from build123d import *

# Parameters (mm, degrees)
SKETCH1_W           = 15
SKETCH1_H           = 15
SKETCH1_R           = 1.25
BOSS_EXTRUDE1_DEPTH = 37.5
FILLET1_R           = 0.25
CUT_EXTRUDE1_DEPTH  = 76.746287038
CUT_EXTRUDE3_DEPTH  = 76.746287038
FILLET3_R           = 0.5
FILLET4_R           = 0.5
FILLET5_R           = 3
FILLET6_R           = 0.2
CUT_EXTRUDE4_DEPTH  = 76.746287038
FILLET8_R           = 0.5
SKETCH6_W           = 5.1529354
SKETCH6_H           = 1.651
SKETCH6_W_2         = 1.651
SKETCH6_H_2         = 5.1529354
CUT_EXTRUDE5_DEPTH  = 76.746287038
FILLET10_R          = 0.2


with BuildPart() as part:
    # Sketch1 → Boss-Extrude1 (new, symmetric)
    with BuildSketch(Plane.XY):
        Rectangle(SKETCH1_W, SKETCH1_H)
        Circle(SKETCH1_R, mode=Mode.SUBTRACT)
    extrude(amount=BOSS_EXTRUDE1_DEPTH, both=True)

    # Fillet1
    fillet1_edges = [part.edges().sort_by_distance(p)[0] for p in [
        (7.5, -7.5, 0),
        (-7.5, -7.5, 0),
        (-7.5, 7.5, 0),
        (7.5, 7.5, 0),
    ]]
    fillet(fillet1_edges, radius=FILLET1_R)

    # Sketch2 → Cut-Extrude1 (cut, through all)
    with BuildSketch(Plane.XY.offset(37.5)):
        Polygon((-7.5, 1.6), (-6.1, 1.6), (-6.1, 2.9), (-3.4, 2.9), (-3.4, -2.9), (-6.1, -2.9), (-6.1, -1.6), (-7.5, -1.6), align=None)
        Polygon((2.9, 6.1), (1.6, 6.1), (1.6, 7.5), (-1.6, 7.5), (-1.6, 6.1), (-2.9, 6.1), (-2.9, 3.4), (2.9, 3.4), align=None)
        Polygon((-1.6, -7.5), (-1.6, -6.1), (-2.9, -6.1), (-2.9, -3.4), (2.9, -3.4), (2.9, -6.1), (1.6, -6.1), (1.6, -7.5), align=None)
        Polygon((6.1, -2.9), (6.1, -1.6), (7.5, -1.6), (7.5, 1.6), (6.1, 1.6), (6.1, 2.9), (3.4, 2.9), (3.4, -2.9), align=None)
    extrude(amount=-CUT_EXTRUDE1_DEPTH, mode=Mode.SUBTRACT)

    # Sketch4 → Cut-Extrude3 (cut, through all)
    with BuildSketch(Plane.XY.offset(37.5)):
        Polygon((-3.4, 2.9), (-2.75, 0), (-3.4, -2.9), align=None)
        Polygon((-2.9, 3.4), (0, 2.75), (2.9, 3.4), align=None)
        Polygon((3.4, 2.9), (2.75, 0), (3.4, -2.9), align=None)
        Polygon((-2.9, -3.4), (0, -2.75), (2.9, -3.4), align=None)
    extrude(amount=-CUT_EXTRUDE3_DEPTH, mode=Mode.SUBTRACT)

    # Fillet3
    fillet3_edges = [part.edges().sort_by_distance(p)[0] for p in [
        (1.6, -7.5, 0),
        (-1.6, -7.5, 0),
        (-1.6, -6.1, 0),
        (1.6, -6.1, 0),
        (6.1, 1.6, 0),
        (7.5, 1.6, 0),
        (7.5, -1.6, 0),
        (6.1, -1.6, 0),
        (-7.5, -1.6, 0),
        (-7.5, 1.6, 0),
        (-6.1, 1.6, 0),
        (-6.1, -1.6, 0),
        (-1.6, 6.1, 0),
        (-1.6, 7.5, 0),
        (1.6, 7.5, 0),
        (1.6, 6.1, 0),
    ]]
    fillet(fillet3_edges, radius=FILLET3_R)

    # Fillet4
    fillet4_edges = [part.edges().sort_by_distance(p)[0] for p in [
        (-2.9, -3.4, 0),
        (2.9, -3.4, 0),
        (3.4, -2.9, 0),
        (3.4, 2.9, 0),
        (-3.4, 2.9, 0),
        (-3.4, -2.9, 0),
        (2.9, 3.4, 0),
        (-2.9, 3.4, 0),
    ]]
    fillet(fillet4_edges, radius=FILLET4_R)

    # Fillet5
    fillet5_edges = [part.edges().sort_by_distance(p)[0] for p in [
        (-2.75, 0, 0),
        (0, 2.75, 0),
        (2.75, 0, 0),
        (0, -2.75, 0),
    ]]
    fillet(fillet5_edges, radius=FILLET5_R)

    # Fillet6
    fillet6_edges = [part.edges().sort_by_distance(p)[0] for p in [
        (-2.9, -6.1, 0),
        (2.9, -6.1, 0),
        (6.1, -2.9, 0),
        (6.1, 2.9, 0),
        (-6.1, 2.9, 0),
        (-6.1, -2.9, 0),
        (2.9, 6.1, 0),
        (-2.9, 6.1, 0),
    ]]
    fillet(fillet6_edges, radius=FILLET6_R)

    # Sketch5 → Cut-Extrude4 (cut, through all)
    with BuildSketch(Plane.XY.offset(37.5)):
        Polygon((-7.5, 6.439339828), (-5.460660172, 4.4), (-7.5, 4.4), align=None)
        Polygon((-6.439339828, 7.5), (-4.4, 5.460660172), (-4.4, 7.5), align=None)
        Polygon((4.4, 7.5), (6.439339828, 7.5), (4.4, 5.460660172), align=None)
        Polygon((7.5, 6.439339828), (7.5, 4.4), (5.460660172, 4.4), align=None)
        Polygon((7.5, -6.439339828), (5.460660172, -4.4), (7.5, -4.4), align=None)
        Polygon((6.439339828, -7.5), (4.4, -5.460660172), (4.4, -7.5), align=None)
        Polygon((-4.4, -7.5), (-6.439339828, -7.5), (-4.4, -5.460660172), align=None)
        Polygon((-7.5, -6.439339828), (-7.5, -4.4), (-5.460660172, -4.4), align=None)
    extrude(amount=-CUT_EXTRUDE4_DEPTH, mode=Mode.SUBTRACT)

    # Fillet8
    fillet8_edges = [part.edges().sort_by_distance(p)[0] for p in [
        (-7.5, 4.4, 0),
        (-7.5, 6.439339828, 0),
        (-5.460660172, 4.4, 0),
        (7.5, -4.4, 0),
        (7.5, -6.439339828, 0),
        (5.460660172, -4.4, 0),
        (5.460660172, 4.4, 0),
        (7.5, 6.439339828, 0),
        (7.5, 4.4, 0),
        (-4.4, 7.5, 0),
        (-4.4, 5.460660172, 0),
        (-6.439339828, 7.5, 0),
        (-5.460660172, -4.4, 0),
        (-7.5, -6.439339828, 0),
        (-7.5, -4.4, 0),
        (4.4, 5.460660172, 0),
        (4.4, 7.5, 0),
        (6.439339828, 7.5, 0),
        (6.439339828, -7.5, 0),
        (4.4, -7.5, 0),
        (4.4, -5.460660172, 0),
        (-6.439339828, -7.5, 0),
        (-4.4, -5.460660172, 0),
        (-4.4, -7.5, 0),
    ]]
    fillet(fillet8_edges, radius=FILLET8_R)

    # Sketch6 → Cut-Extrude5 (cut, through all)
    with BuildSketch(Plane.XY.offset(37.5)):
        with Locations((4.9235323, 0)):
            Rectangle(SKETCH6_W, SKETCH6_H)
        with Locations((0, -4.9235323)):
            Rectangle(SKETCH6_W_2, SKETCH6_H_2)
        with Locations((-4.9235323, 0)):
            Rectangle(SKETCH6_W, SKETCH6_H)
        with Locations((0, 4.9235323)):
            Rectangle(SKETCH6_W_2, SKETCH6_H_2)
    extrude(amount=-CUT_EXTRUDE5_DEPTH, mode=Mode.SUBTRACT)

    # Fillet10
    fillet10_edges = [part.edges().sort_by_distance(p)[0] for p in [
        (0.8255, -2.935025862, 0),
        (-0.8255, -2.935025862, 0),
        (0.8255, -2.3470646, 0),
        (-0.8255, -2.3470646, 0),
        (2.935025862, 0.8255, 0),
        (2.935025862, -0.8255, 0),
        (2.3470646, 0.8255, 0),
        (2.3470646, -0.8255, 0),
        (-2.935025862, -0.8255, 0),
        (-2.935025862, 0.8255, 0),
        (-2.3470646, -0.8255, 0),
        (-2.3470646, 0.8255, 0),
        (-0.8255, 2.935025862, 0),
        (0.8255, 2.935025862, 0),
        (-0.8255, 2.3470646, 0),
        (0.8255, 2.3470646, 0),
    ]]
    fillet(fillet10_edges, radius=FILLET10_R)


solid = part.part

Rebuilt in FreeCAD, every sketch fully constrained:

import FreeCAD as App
import Part
import Sketcher
Q = App.Units.Quantity


def edges_at(feature, points):
    """Names of the edges that pass closest to the given points."""
    edges = feature.Shape.Edges
    near = lambda p: min(range(len(edges)), key=lambda i: edges[i].distToShape(Part.Vertex(*p))[0])
    return sorted({f"Edge{near(p) + 1}" for p in points})


def add_polygon(sketch, points):
    """Adds a closed chain of lines whose ends are joined by coincident constraints."""
    first, n = sketch.GeometryCount, len(points)
    for a, b in zip(points, points[1:] + points[:1]):
        sketch.addGeometry(Part.LineSegment(App.Vector(*a, 0), App.Vector(*b, 0)), False)
    for i in range(n):
        sketch.addConstraint(Sketcher.Constraint("Coincident", first + i, 2, first + (i + 1) % n, 1))

doc = App.newDocument("Part")
body = doc.addObject("PartDesign::Body", "Body")

# Sketch on XY plane
sketch1 = body.newObject("Sketcher::SketchObject", "Sketch")
sketch1.AttachmentSupport = (doc.getObject("XY_Plane"), [""])
sketch1.MapMode = "FlatFace"
add_polygon(sketch1, [(-7.5, 7.5), (-7.5, -7.5), (7.5, -7.5), (7.5, 7.5)])  # lines 0-3
sketch1.addGeometry(Part.Circle(App.Vector(0, 0, 0), App.Vector(0, 0, 1), 1.2), False)  # 4
sketch1.addConstraint(Sketcher.Constraint("Vertical", 0))
sketch1.addConstraint(Sketcher.Constraint("Horizontal", 1))
sketch1.addConstraint(Sketcher.Constraint("Vertical", 2))
sketch1.addConstraint(Sketcher.Constraint("Horizontal", 3))
sketch1.addConstraint(Sketcher.Constraint("Coincident", 4, 3, -1, 1))
sketch1.addConstraint(Sketcher.Constraint("Symmetric", 0, 2, 2, 2, -1, 1))
sketch1.addConstraint(Sketcher.Constraint("Equal", 3, 0))
sketch1.addConstraint(Sketcher.Constraint("Diameter", 4, Q("2.5 mm")))
sketch1.addConstraint(Sketcher.Constraint("DistanceX", 1, 1, 1, 2, Q("15 mm")))
pad1 = body.newObject("PartDesign::Pad", "Pad")
pad1.Profile = sketch1
pad1.Length = 75
pad1.Midplane = True
doc.recompute()

fillet = body.newObject("PartDesign::Fillet", "Fillet")
fillet.Base = (pad1, edges_at(pad1, [
    (7.5, -7.5, 0),
    (-7.5, -7.5, 0),
    (-7.5, 7.5, 0),
    (7.5, 7.5, 0),
]))
fillet.Radius = 0.25

# Sketch on XY plane
sketch2 = body.newObject("Sketcher::SketchObject", "Sketch001")
sketch2.AttachmentSupport = (doc.getObject("XY_Plane"), [""])
sketch2.MapMode = "FlatFace"
sketch2.AttachmentOffset = App.Placement(App.Vector(0, 0, 37.5), App.Rotation())
add_polygon(sketch2, [(-6.1, 1.6), (-7.5, 1.6), (-7.5, -1.6), (-6.1, -1.6), (-6.1, -2.9), (-3.4, -2.9), (-3.4, 2.9), (-6.1, 2.9)])  # lines 0-7
add_polygon(sketch2, [(2.9, 6.1), (1.6, 6.1), (1.6, 7.5), (-1.6, 7.5), (-1.6, 6.1), (-2.9, 6.1), (-2.9, 3.4), (2.9, 3.4)])  # lines 8-15
add_polygon(sketch2, [(-1.6, -6.1), (-1.6, -7.5), (1.6, -7.5), (1.6, -6.1), (2.9, -6.1), (2.9, -3.4), (-2.9, -3.4), (-2.9, -6.1)])  # lines 16-23
add_polygon(sketch2, [(6.1, -2.9), (6.1, -1.6), (7.5, -1.6), (7.5, 1.6), (6.1, 1.6), (6.1, 2.9), (3.4, 2.9), (3.4, -2.9)])  # lines 24-31
sketch2.addConstraint(Sketcher.Constraint("Horizontal", 0))
sketch2.addConstraint(Sketcher.Constraint("Vertical", 1))
sketch2.addConstraint(Sketcher.Constraint("Horizontal", 2))
sketch2.addConstraint(Sketcher.Constraint("Vertical", 3))
sketch2.addConstraint(Sketcher.Constraint("Horizontal", 4))
sketch2.addConstraint(Sketcher.Constraint("Vertical", 5))
sketch2.addConstraint(Sketcher.Constraint("Horizontal", 6))
sketch2.addConstraint(Sketcher.Constraint("Vertical", 7))
sketch2.addConstraint(Sketcher.Constraint("Horizontal", 8))
sketch2.addConstraint(Sketcher.Constraint("Vertical", 9))
sketch2.addConstraint(Sketcher.Constraint("Horizontal", 10))
sketch2.addConstraint(Sketcher.Constraint("Vertical", 11))
sketch2.addConstraint(Sketcher.Constraint("Horizontal", 12))
sketch2.addConstraint(Sketcher.Constraint("Vertical", 13))
sketch2.addConstraint(Sketcher.Constraint("Horizontal", 14))
sketch2.addConstraint(Sketcher.Constraint("Vertical", 15))
sketch2.addConstraint(Sketcher.Constraint("Vertical", 16))
sketch2.addConstraint(Sketcher.Constraint("Horizontal", 17))
sketch2.addConstraint(Sketcher.Constraint("Vertical", 18))
sketch2.addConstraint(Sketcher.Constraint("Horizontal", 19))
sketch2.addConstraint(Sketcher.Constraint("Vertical", 20))
sketch2.addConstraint(Sketcher.Constraint("Horizontal", 21))
sketch2.addConstraint(Sketcher.Constraint("Vertical", 22))
sketch2.addConstraint(Sketcher.Constraint("Horizontal", 23))
sketch2.addConstraint(Sketcher.Constraint("Vertical", 24))
sketch2.addConstraint(Sketcher.Constraint("Horizontal", 25))
sketch2.addConstraint(Sketcher.Constraint("Vertical", 26))
sketch2.addConstraint(Sketcher.Constraint("Horizontal", 27))
sketch2.addConstraint(Sketcher.Constraint("Vertical", 28))
sketch2.addConstraint(Sketcher.Constraint("Horizontal", 29))
sketch2.addConstraint(Sketcher.Constraint("Vertical", 30))
sketch2.addConstraint(Sketcher.Constraint("Horizontal", 31))
sketch2.addConstraint(Sketcher.Constraint("Symmetric", 9, 2, 16, 2, -1, 1))
sketch2.addConstraint(Sketcher.Constraint("Symmetric", 11, 2, 18, 2, -1, 1))
sketch2.addConstraint(Sketcher.Constraint("Symmetric", 13, 2, 20, 2, -1, 1))
sketch2.addConstraint(Sketcher.Constraint("Symmetric", 15, 2, 22, 2, -1, 1))
sketch2.addConstraint(Sketcher.Constraint("Symmetric", 7, 2, 24, 2, -1, 1))
sketch2.addConstraint(Sketcher.Constraint("Symmetric", 1, 2, 26, 2, -1, 1))
sketch2.addConstraint(Sketcher.Constraint("Symmetric", 3, 2, 28, 2, -1, 1))
sketch2.addConstraint(Sketcher.Constraint("Symmetric", 5, 2, 30, 2, -1, 1))
sketch2.addConstraint(Sketcher.Constraint("Symmetric", 8, 2, 11, 2, -2))
sketch2.addConstraint(Sketcher.Constraint("Symmetric", 2, 2, 24, 2, -2))
sketch2.addConstraint(Sketcher.Constraint("Horizontal", 6, 2, 28, 2))
sketch2.addConstraint(Sketcher.Constraint("Vertical", 15, 2, 19, 2))
sketch2.addConstraint(Sketcher.Constraint("Equal", 17, 1))
sketch2.addConstraint(Sketcher.Constraint("Equal", 23, 3))
sketch2.addConstraint(Sketcher.Constraint("Equal", 27, 9))
sketch2.addConstraint(Sketcher.Constraint("Equal", 31, 13))
sketch2.addConstraint(Sketcher.Constraint("DistanceX", 0, 2, 0, 1, Q("1.4 mm")))
sketch2.addConstraint(Sketcher.Constraint("DistanceX", 4, 1, 4, 2, Q("2.7 mm")))
sketch2.addConstraint(Sketcher.Constraint("DistanceX", 8, 2, 8, 1, Q("1.3 mm")))
sketch2.addConstraint(Sketcher.Constraint("DistanceX", 10, 2, 10, 1, Q("3.2 mm")))
sketch2.addConstraint(Sketcher.Constraint("DistanceX", 5, 2, 8, 2, Q("5 mm")))
sketch2.addConstraint(Sketcher.Constraint("DistanceY", 4, 2, 8, 2, Q("9 mm")))
pocket1 = body.newObject("PartDesign::Pocket", "Pocket")
pocket1.Profile = sketch2
pocket1.Type = "ThroughAll"

# Sketch on XY plane
sketch3 = body.newObject("Sketcher::SketchObject", "Sketch002")
sketch3.AttachmentSupport = (doc.getObject("XY_Plane"), [""])
sketch3.MapMode = "FlatFace"
sketch3.AttachmentOffset = App.Placement(App.Vector(0, 0, 37.5), App.Rotation())
add_polygon(sketch3, [(-2.8, 0), (-3.4, 2.9), (-3.4, -2.9)])  # lines 0-2
add_polygon(sketch3, [(-2.9, 3.4), (0, 2.8), (2.9, 3.4)])  # lines 3-5
add_polygon(sketch3, [(3.4, 2.9), (2.8, 0), (3.4, -2.9)])  # lines 6-8
add_polygon(sketch3, [(0, -2.8), (-2.9, -3.4), (2.9, -3.4)])  # lines 9-11
sketch3.addConstraint(Sketcher.Constraint("Vertical", 1))
sketch3.addConstraint(Sketcher.Constraint("Horizontal", 5))
sketch3.addConstraint(Sketcher.Constraint("Vertical", 8))
sketch3.addConstraint(Sketcher.Constraint("Horizontal", 10))
sketch3.addConstraint(Sketcher.Constraint("Symmetric", 2, 2, 6, 2, -1, 1))
sketch3.addConstraint(Sketcher.Constraint("Symmetric", 0, 2, 7, 2, -1, 1))
sketch3.addConstraint(Sketcher.Constraint("Symmetric", 4, 2, 9, 2, -1, 1))
sketch3.addConstraint(Sketcher.Constraint("Symmetric", 3, 2, 11, 2, -1, 1))
sketch3.addConstraint(Sketcher.Constraint("PointOnObject", 2, 2, -1))
sketch3.addConstraint(Sketcher.Constraint("PointOnObject", 3, 2, -2))
sketch3.addConstraint(Sketcher.Constraint("Perpendicular", 2, 3))
sketch3.addConstraint(Sketcher.Constraint("Perpendicular", 0, 4))
sketch3.addConstraint(Sketcher.Constraint("Perpendicular", 3, 6))
sketch3.addConstraint(Sketcher.Constraint("Perpendicular", 6, 11))
sketch3.addConstraint(Sketcher.Constraint("Horizontal", 1, 2, 7, 2))
sketch3.addConstraint(Sketcher.Constraint("Equal", 10, 1))
sketch3.addConstraint(Sketcher.Constraint("DistanceX", 5, 2, 5, 1, Q("5.8 mm")))
sketch3.addConstraint(Sketcher.Constraint("DistanceX", 0, 2, -1, 1, Q("3.4 mm")))
sketch3.addConstraint(Sketcher.Constraint("DistanceY", -1, 1, 4, 2, Q("3.4 mm")))
sketch3.addConstraint(Sketcher.Constraint("DistanceX", 2, 2, 6, 2, Q("5.5 mm")))
pocket2 = body.newObject("PartDesign::Pocket", "Pocket001")
pocket2.Profile = sketch3
pocket2.Type = "ThroughAll"
doc.recompute()

fillet2 = body.newObject("PartDesign::Fillet", "Fillet001")
fillet2.Base = (pocket2, edges_at(pocket2, [
    (1.6, -7.5, 0),
    (-1.6, -7.5, 0),
    (-1.6, -6.1, 0),
    (1.6, -6.1, 0),
    (6.1, 1.6, 0),
    (7.5, 1.6, 0),
    (7.5, -1.6, 0),
    (6.1, -1.6, 0),
    (-7.5, -1.6, 0),
    (-7.5, 1.6, 0),
    (-6.1, 1.6, 0),
    (-6.1, -1.6, 0),
    (-1.6, 6.1, 0),
    (-1.6, 7.5, 0),
    (1.6, 7.5, 0),
    (1.6, 6.1, 0),
]))
fillet2.Radius = 0.5
doc.recompute()

fillet3 = body.newObject("PartDesign::Fillet", "Fillet002")
fillet3.Base = (fillet2, edges_at(fillet2, [
    (-2.9, -3.4, 0),
    (2.9, -3.4, 0),
    (3.4, -2.9, 0),
    (3.4, 2.9, 0),
    (-3.4, 2.9, 0),
    (-3.4, -2.9, 0),
    (2.9, 3.4, 0),
    (-2.9, 3.4, 0),
]))
fillet3.Radius = 0.5
doc.recompute()

fillet4 = body.newObject("PartDesign::Fillet", "Fillet003")
fillet4.Base = (fillet3, edges_at(fillet3, [
    (-2.75, 0, 0),
    (0, 2.75, 0),
    (2.75, 0, 0),
    (0, -2.75, 0),
]))
fillet4.Radius = 3
doc.recompute()

fillet5 = body.newObject("PartDesign::Fillet", "Fillet004")
fillet5.Base = (fillet4, edges_at(fillet4, [
    (-2.9, -6.1, 0),
    (2.9, -6.1, 0),
    (6.1, -2.9, 0),
    (6.1, 2.9, 0),
    (-6.1, 2.9, 0),
    (-6.1, -2.9, 0),
    (2.9, 6.1, 0),
    (-2.9, 6.1, 0),
]))
fillet5.Radius = 0.2

# Sketch on XY plane
sketch4 = body.newObject("Sketcher::SketchObject", "Sketch003")
sketch4.AttachmentSupport = (doc.getObject("XY_Plane"), [""])
sketch4.MapMode = "FlatFace"
sketch4.AttachmentOffset = App.Placement(App.Vector(0, 0, 37.5), App.Rotation())
add_polygon(sketch4, [(-5.5, 4.4), (-7.5, 6.4), (-7.5, 4.4)])  # lines 0-2
add_polygon(sketch4, [(-6.4, 7.5), (-4.4, 5.5), (-4.4, 7.5)])  # lines 3-5
add_polygon(sketch4, [(6.4, 7.5), (4.4, 7.5), (4.4, 5.5)])  # lines 6-8
add_polygon(sketch4, [(7.5, 4.4), (7.5, 6.4), (5.5, 4.4)])  # lines 9-11
add_polygon(sketch4, [(5.5, -4.4), (7.5, -6.4), (7.5, -4.4)])  # lines 12-14
add_polygon(sketch4, [(6.4, -7.5), (4.4, -5.5), (4.4, -7.5)])  # lines 15-17
add_polygon(sketch4, [(-6.4, -7.5), (-4.4, -7.5), (-4.4, -5.5)])  # lines 18-20
add_polygon(sketch4, [(-7.5, -4.4), (-7.5, -6.4), (-5.5, -4.4)])  # lines 21-23
sketch4.addConstraint(Sketcher.Constraint("Vertical", 1))
sketch4.addConstraint(Sketcher.Constraint("Horizontal", 2))
sketch4.addConstraint(Sketcher.Constraint("Vertical", 4))
sketch4.addConstraint(Sketcher.Constraint("Horizontal", 5))
sketch4.addConstraint(Sketcher.Constraint("Horizontal", 6))
sketch4.addConstraint(Sketcher.Constraint("Vertical", 7))
sketch4.addConstraint(Sketcher.Constraint("Vertical", 9))
sketch4.addConstraint(Sketcher.Constraint("Horizontal", 11))
sketch4.addConstraint(Sketcher.Constraint("Vertical", 13))
sketch4.addConstraint(Sketcher.Constraint("Horizontal", 14))
sketch4.addConstraint(Sketcher.Constraint("Vertical", 16))
sketch4.addConstraint(Sketcher.Constraint("Horizontal", 17))
sketch4.addConstraint(Sketcher.Constraint("Horizontal", 18))
sketch4.addConstraint(Sketcher.Constraint("Vertical", 19))
sketch4.addConstraint(Sketcher.Constraint("Vertical", 21))
sketch4.addConstraint(Sketcher.Constraint("Horizontal", 23))
sketch4.addConstraint(Sketcher.Constraint("Symmetric", 0, 2, 12, 2, -1, 1))
sketch4.addConstraint(Sketcher.Constraint("Symmetric", 2, 2, 14, 2, -1, 1))
sketch4.addConstraint(Sketcher.Constraint("Symmetric", 3, 2, 15, 2, -1, 1))
sketch4.addConstraint(Sketcher.Constraint("Symmetric", 5, 2, 17, 2, -1, 1))
sketch4.addConstraint(Sketcher.Constraint("Symmetric", 6, 2, 18, 2, -1, 1))
sketch4.addConstraint(Sketcher.Constraint("Symmetric", 9, 2, 21, 2, -1, 1))
sketch4.addConstraint(Sketcher.Constraint("Symmetric", 10, 2, 22, 2, -1, 1))
sketch4.addConstraint(Sketcher.Constraint("Symmetric", 4, 2, 6, 2, -2))
sketch4.addConstraint(Sketcher.Constraint("Symmetric", 0, 2, 9, 2, -2))
sketch4.addConstraint(Sketcher.Constraint("Symmetric", 2, 2, 10, 2, -2))
sketch4.addConstraint(Sketcher.Constraint("Parallel", 0, 3))
sketch4.addConstraint(Sketcher.Constraint("Perpendicular", 3, 8))
sketch4.addConstraint(Sketcher.Constraint("Parallel", 8, 10))
sketch4.addConstraint(Sketcher.Constraint("Perpendicular", 15, 20))
sketch4.addConstraint(Sketcher.Constraint("Horizontal", 3, 2, 7, 2))
sketch4.addConstraint(Sketcher.Constraint("Horizontal", 15, 2, 19, 2))
sketch4.addConstraint(Sketcher.Constraint("Equal", 2, 5))
sketch4.addConstraint(Sketcher.Constraint("DistanceX", 0, 2, -1, 1, Q("7.5 mm")))
sketch4.addConstraint(Sketcher.Constraint("DistanceY", -1, 1, 1, 2, Q("4.4 mm")))
sketch4.addConstraint(Sketcher.Constraint("DistanceX", 3, 2, -1, 1, Q("4.4 mm")))
sketch4.addConstraint(Sketcher.Constraint("DistanceY", -1, 1, 4, 2, Q("7.5 mm")))
sketch4.addConstraint(Sketcher.Constraint("DistanceX", 2, 1, 2, 2, Q("2.03934 mm")))
pocket3 = body.newObject("PartDesign::Pocket", "Pocket002")
pocket3.Profile = sketch4
pocket3.Type = "ThroughAll"
doc.recompute()

fillet6 = body.newObject("PartDesign::Fillet", "Fillet005")
fillet6.Base = (pocket3, edges_at(pocket3, [
    (-7.5, 4.4, 0),
    (-7.5, 6.439, 0),
    (-5.461, 4.4, 0),
    (7.5, -4.4, 0),
    (7.5, -6.439, 0),
    (5.461, -4.4, 0),
    (5.461, 4.4, 0),
    (7.5, 6.439, 0),
    (7.5, 4.4, 0),
    (-4.4, 7.5, 0),
    (-4.4, 5.461, 0),
    (-6.439, 7.5, 0),
    (-5.461, -4.4, 0),
    (-7.5, -6.439, 0),
    (-7.5, -4.4, 0),
    (4.4, 5.461, 0),
    (4.4, 7.5, 0),
    (6.439, 7.5, 0),
    (6.439, -7.5, 0),
    (4.4, -7.5, 0),
    (4.4, -5.461, 0),
    (-6.439, -7.5, 0),
    (-4.4, -5.461, 0),
    (-4.4, -7.5, 0),
]))
fillet6.Radius = 0.5

# Sketch on XY plane
sketch5 = body.newObject("Sketcher::SketchObject", "Sketch004")
sketch5.AttachmentSupport = (doc.getObject("XY_Plane"), [""])
sketch5.MapMode = "FlatFace"
sketch5.AttachmentOffset = App.Placement(App.Vector(0, 0, 37.5), App.Rotation())
add_polygon(sketch5, [(2.3, 0.8), (2.3, -0.8), (7.5, -0.8), (7.5, 0.8)])  # lines 0-3
add_polygon(sketch5, [(-0.8, -2.3), (-0.8, -7.5), (0.8, -7.5), (0.8, -2.3)])  # lines 4-7
add_polygon(sketch5, [(-7.5, 0.8), (-7.5, -0.8), (-2.3, -0.8), (-2.3, 0.8)])  # lines 8-11
add_polygon(sketch5, [(-0.8, 7.5), (-0.8, 2.3), (0.8, 2.3), (0.8, 7.5)])  # lines 12-15
sketch5.addConstraint(Sketcher.Constraint("Vertical", 0))
sketch5.addConstraint(Sketcher.Constraint("Horizontal", 1))
sketch5.addConstraint(Sketcher.Constraint("Vertical", 2))
sketch5.addConstraint(Sketcher.Constraint("Horizontal", 3))
sketch5.addConstraint(Sketcher.Constraint("Vertical", 4))
sketch5.addConstraint(Sketcher.Constraint("Horizontal", 5))
sketch5.addConstraint(Sketcher.Constraint("Vertical", 6))
sketch5.addConstraint(Sketcher.Constraint("Horizontal", 7))
sketch5.addConstraint(Sketcher.Constraint("Vertical", 8))
sketch5.addConstraint(Sketcher.Constraint("Horizontal", 9))
sketch5.addConstraint(Sketcher.Constraint("Vertical", 10))
sketch5.addConstraint(Sketcher.Constraint("Horizontal", 11))
sketch5.addConstraint(Sketcher.Constraint("Vertical", 12))
sketch5.addConstraint(Sketcher.Constraint("Horizontal", 13))
sketch5.addConstraint(Sketcher.Constraint("Vertical", 14))
sketch5.addConstraint(Sketcher.Constraint("Horizontal", 15))
sketch5.addConstraint(Sketcher.Constraint("Symmetric", 2, 2, 8, 2, -1, 1))
sketch5.addConstraint(Sketcher.Constraint("Symmetric", 0, 2, 10, 2, -1, 1))
sketch5.addConstraint(Sketcher.Constraint("Symmetric", 6, 2, 12, 2, -1, 1))
sketch5.addConstraint(Sketcher.Constraint("Symmetric", 4, 2, 14, 2, -1, 1))
sketch5.addConstraint(Sketcher.Constraint("Horizontal", 1, 2, 8, 2))
sketch5.addConstraint(Sketcher.Constraint("Vertical", 7, 2, 12, 2))
sketch5.addConstraint(Sketcher.Constraint("Equal", 15, 0))
sketch5.addConstraint(Sketcher.Constraint("Equal", 11, 4))
sketch5.addConstraint(Sketcher.Constraint("DistanceX", -1, 1, 1, 2, Q("7.5 mm")))
sketch5.addConstraint(Sketcher.Constraint("DistanceY", 4, 2, -1, 1, Q("7.5 mm")))
sketch5.addConstraint(Sketcher.Constraint("DistanceX", 5, 1, 5, 2, Q("1.651 mm")))
sketch5.addConstraint(Sketcher.Constraint("DistanceX", 1, 1, 1, 2, Q("5.152935 mm")))
pocket4 = body.newObject("PartDesign::Pocket", "Pocket003")
pocket4.Profile = sketch5
pocket4.Type = "ThroughAll"
doc.recompute()

fillet7 = body.newObject("PartDesign::Fillet", "Fillet006")
fillet7.Base = (pocket4, edges_at(pocket4, [
    (0.826, -2.935, 0),
    (-0.826, -2.935, 0),
    (0.826, -2.347, 0),
    (-0.826, -2.347, 0),
    (2.935, 0.826, 0),
    (2.935, -0.826, 0),
    (2.347, 0.826, 0),
    (2.347, -0.826, 0),
    (-2.935, -0.826, 0),
    (-2.935, 0.826, 0),
    (-2.347, -0.826, 0),
    (-2.347, 0.826, 0),
    (-0.826, 2.935, 0),
    (0.826, 2.935, 0),
    (-0.826, 2.347, 0),
    (0.826, 2.347, 0),
]))
fillet7.Radius = 0.2

doc.recompute()
